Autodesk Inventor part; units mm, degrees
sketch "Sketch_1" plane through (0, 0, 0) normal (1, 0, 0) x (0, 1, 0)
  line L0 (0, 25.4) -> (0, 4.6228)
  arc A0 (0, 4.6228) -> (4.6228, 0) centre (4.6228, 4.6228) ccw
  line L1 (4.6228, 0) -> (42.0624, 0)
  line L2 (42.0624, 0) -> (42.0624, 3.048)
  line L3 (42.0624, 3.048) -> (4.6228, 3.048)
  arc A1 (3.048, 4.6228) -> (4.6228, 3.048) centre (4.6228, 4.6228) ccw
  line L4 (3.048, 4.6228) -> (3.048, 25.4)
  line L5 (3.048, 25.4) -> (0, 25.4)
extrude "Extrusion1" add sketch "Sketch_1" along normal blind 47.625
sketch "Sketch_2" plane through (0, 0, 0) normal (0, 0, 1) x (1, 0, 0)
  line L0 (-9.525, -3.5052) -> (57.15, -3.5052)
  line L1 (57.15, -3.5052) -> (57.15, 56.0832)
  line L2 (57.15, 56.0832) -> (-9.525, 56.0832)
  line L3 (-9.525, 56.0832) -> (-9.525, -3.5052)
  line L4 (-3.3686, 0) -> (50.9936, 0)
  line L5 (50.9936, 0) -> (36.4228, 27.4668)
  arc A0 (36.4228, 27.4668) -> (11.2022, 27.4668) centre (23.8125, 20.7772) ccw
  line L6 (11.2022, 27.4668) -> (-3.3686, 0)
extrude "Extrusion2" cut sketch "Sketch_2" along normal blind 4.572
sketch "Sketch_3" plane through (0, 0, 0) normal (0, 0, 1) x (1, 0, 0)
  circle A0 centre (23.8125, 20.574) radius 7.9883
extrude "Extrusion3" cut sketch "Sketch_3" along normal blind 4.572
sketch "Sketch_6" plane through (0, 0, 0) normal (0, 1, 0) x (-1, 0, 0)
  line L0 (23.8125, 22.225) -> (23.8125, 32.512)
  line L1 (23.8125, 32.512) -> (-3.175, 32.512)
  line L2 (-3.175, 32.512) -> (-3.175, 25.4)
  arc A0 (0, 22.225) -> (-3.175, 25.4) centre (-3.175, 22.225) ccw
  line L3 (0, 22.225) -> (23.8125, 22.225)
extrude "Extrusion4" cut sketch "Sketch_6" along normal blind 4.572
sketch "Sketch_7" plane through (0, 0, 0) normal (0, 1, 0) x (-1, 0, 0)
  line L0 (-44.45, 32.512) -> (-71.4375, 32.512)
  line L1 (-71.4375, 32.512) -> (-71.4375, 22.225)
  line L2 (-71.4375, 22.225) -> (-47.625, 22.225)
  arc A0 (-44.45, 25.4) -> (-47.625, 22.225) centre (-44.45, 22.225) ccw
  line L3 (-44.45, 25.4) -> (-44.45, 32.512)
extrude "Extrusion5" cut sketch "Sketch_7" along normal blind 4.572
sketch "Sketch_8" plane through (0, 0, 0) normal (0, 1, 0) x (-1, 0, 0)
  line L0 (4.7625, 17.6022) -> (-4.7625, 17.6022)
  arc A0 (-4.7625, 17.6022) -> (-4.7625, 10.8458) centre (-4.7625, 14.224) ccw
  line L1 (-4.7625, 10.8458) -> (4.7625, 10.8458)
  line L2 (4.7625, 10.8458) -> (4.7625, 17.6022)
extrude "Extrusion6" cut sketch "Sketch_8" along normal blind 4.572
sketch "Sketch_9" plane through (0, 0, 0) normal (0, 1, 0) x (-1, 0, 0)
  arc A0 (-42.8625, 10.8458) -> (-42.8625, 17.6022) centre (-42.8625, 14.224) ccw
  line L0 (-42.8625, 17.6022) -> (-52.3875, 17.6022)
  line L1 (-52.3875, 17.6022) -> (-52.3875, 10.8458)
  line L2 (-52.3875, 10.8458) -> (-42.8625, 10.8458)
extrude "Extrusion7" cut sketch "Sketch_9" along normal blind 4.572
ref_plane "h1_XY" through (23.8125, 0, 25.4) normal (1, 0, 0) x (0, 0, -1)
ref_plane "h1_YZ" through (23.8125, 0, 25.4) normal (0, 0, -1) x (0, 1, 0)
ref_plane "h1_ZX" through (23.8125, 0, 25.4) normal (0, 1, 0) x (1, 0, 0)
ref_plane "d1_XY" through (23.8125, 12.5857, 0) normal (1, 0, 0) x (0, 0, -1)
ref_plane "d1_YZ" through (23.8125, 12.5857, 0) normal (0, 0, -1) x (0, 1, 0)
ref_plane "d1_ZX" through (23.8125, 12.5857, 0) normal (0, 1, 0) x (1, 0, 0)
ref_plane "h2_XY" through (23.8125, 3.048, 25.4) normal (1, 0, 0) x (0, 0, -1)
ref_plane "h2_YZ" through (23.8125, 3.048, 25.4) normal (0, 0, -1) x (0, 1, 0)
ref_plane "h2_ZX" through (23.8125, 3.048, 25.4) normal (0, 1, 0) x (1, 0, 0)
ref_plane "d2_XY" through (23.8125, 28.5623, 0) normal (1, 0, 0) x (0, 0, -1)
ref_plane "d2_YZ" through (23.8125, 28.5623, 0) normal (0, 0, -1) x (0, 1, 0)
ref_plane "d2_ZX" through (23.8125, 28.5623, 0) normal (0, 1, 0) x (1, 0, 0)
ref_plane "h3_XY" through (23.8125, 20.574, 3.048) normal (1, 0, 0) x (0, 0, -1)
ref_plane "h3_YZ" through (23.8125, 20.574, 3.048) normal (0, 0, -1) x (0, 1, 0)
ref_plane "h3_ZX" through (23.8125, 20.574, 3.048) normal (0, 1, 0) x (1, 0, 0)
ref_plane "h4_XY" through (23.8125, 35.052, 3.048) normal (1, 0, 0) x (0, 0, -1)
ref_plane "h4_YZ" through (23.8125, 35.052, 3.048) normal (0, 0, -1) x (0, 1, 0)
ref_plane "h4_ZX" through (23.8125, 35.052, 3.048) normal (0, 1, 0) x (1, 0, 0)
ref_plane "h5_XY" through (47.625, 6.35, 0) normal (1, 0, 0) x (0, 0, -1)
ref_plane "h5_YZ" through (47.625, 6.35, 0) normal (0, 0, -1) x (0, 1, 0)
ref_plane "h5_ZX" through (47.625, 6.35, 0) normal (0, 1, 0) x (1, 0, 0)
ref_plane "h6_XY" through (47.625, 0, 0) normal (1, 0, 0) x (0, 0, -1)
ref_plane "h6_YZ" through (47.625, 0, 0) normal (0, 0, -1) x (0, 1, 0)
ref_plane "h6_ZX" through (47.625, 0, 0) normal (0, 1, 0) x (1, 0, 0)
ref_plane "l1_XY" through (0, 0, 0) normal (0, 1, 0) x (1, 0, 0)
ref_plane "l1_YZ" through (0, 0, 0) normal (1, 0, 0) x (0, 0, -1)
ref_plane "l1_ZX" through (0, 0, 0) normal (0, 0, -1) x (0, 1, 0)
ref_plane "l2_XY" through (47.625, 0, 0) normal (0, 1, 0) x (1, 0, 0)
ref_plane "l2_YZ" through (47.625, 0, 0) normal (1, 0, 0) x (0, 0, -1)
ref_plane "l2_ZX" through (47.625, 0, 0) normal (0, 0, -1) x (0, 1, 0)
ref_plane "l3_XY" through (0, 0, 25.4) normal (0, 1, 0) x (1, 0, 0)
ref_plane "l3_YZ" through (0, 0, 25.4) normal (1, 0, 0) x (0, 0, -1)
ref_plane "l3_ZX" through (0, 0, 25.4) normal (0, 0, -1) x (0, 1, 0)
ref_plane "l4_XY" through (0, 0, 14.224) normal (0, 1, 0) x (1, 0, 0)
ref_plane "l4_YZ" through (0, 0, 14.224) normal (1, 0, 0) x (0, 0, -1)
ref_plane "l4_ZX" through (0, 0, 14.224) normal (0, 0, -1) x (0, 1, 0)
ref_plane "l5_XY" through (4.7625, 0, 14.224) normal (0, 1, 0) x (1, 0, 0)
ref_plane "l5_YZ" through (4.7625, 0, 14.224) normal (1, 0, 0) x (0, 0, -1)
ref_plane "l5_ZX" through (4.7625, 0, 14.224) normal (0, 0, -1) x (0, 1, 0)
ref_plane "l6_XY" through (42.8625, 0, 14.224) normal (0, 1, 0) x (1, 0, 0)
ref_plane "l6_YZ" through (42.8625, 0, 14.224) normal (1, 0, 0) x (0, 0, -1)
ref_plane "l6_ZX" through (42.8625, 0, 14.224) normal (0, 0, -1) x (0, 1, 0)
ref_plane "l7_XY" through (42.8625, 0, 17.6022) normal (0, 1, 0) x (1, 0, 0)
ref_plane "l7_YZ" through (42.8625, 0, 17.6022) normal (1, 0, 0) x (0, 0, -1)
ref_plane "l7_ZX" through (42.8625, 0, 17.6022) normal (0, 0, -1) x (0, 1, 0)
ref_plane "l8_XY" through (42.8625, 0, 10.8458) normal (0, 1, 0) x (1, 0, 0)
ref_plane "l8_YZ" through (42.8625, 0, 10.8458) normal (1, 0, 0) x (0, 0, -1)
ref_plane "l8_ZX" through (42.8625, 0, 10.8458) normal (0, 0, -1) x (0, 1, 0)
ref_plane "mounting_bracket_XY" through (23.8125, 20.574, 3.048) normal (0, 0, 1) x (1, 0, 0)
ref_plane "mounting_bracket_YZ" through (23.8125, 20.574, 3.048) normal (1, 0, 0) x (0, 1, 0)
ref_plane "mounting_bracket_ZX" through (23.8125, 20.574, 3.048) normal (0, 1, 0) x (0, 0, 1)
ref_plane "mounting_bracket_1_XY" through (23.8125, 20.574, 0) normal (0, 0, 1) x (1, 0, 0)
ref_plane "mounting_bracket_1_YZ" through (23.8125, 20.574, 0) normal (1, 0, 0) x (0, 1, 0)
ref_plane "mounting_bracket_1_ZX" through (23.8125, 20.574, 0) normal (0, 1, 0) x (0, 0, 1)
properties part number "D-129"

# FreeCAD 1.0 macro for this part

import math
import FreeCAD as App
import Part
import Sketcher
Q = App.Units.Quantity


def add_polygon(sketch, points):
    """Adds a closed chain of lines whose ends are joined by coincident constraints."""
    first, n = sketch.GeometryCount, len(points)
    for a, b in zip(points, points[1:] + points[:1]):
        sketch.addGeometry(Part.LineSegment(App.Vector(*a, 0), App.Vector(*b, 0)), False)
    for i in range(n):
        sketch.addConstraint(Sketcher.Constraint("Coincident", first + i, 2, first + (i + 1) % n, 1))

doc = App.newDocument("Part")
body = doc.addObject("PartDesign::Body", "Body")

# Sketch on YZ plane
sketch1 = body.newObject("Sketcher::SketchObject", "Sketch")
sketch1.AttachmentSupport = (doc.getObject("YZ_Plane"), [""])
sketch1.MapMode = "FlatFace"
sketch1.addGeometry(Part.LineSegment(App.Vector(3.048, 25.4, 0), App.Vector(0, 25.4, 0)), False)
sketch1.addGeometry(Part.LineSegment(App.Vector(0, 25.4, 0), App.Vector(0, 4.6228, 0)), False)
sketch1.addGeometry(Part.ArcOfCircle(Part.Circle(App.Vector(4.6228, 4.6228, 0), App.Vector(0, 0, 1), 4.6228), math.radians(180), math.radians(270)), False)
sketch1.addGeometry(Part.LineSegment(App.Vector(4.6228, 0, 0), App.Vector(42.0624, 0, 0)), False)
sketch1.addGeometry(Part.LineSegment(App.Vector(42.0624, 0, 0), App.Vector(42.0624, 3.048, 0)), False)
sketch1.addGeometry(Part.LineSegment(App.Vector(42.0624, 3.048, 0), App.Vector(4.6228, 3.048, 0)), False)
sketch1.addGeometry(Part.ArcOfCircle(Part.Circle(App.Vector(4.6228, 4.6228, 0), App.Vector(0, 0, 1), 1.5748), math.radians(180), math.radians(270)), False)
sketch1.addGeometry(Part.LineSegment(App.Vector(3.048, 4.6228, 0), App.Vector(3.048, 25.4, 0)), False)
sketch1.addConstraint(Sketcher.Constraint("Coincident", 0, 2, 1, 1))
sketch1.addConstraint(Sketcher.Constraint("Tangent", 1, 2, 2, 1))
sketch1.addConstraint(Sketcher.Constraint("Tangent", 2, 2, 3, 1))
sketch1.addConstraint(Sketcher.Constraint("Coincident", 3, 2, 4, 1))
sketch1.addConstraint(Sketcher.Constraint("Coincident", 4, 2, 5, 1))
sketch1.addConstraint(Sketcher.Constraint("Tangent", 5, 2, 6, 2))
sketch1.addConstraint(Sketcher.Constraint("Tangent", 6, 1, 7, 1))
sketch1.addConstraint(Sketcher.Constraint("Coincident", 7, 2, 0, 1))
sketch1.addConstraint(Sketcher.Constraint("Horizontal", 0))
sketch1.addConstraint(Sketcher.Constraint("Vertical", 1))
sketch1.addConstraint(Sketcher.Constraint("Horizontal", 3))
sketch1.addConstraint(Sketcher.Constraint("Vertical", 4))
sketch1.addConstraint(Sketcher.Constraint("Horizontal", 5))
sketch1.addConstraint(Sketcher.Constraint("Vertical", 7))
sketch1.addConstraint(Sketcher.Constraint("Coincident", 6, 3, 2, 3))
sketch1.addConstraint(Sketcher.Constraint("PointOnObject", 0, 2, -2))
sketch1.addConstraint(Sketcher.Constraint("PointOnObject", 2, 2, -1))
sketch1.addConstraint(Sketcher.Constraint("DistanceY", -1, 1, 0, 2, Q("1 in")))
sketch1.addConstraint(Sketcher.Constraint("Radius", 2, Q("0.182 in")))
sketch1.addConstraint(Sketcher.Constraint("Radius", 6, Q("0.062 in")))
sketch1.addConstraint(Sketcher.Constraint("DistanceX", 3, 1, 3, 2, Q("1.474 in")))
pad1 = body.newObject("PartDesign::Pad", "Pad")
pad1.Profile = sketch1
pad1.Length = Q("1.875 in")

# Sketch on XY plane
sketch2 = body.newObject("Sketcher::SketchObject", "Sketch001")
sketch2.AttachmentSupport = (doc.getObject("XY_Plane"), [""])
sketch2.MapMode = "FlatFace"
add_polygon(sketch2, [(-9.525, 56.0832), (-9.525, -3.5052), (57.15, -3.5052), (57.15, 56.0832)])  # lines 0-3
sketch2.addGeometry(Part.LineSegment(App.Vector(50.9936, 0, 0), App.Vector(-3.3686, 0, 0)), False)  # 4
sketch2.addGeometry(Part.LineSegment(App.Vector(-3.3686, 0, 0), App.Vector(11.2022, 27.4668, 0)), False)  # 5
sketch2.addGeometry(Part.ArcOfCircle(Part.Circle(App.Vector(23.8125, 20.7772, 0), App.Vector(0, 0, 1), 14.274817), math.radians(27.945368), math.radians(152.054632)), False)  # 6
sketch2.addGeometry(Part.LineSegment(App.Vector(36.4228, 27.4668, 0), App.Vector(50.9936, 0, 0)), False)  # 7
sketch2.addConstraint(Sketcher.Constraint("Coincident", 4, 2, 5, 1))
sketch2.addConstraint(Sketcher.Constraint("Tangent", 5, 2, 6, 2))
sketch2.addConstraint(Sketcher.Constraint("Tangent", 6, 1, 7, 1))
sketch2.addConstraint(Sketcher.Constraint("Coincident", 7, 2, 4, 1))
sketch2.addConstraint(Sketcher.Constraint("Vertical", 0))
sketch2.addConstraint(Sketcher.Constraint("Horizontal", 1))
sketch2.addConstraint(Sketcher.Constraint("Vertical", 2))
sketch2.addConstraint(Sketcher.Constraint("Horizontal", 3))
sketch2.addConstraint(Sketcher.Constraint("Horizontal", 4))
sketch2.addConstraint(Sketcher.Constraint("PointOnObject", 4, 2, -1))
sketch2.addConstraint(Sketcher.Constraint("Horizontal", 5, 2, 6, 1))
sketch2.addConstraint(Sketcher.Constraint("Radius", 6, Q("0.562 in")))
sketch2.addConstraint(Sketcher.Constraint("DistanceX", 1, 1, 1, 2, Q("2.625 in")))
sketch2.addConstraint(Sketcher.Constraint("DistanceY", 0, 2, 0, 1, Q("2.346 in")))
sketch2.addConstraint(Sketcher.Constraint("DistanceX", -1, 1, 1, 2, Q("2.25 in")))
sketch2.addConstraint(Sketcher.Constraint("DistanceY", 6, 3, 2, 2, Q("1.39 in")))
sketch2.addConstraint(Sketcher.Constraint("DistanceX", -1, 1, 6, 3, Q("0.9375 in")))
sketch2.addConstraint(Sketcher.Constraint("DistanceY", -1, 1, 6, 3, Q("0.818 in")))
sketch2.addConstraint(Sketcher.Constraint("Distance", 5, Q("1.2241 in")))
pocket1 = body.newObject("PartDesign::Pocket", "Pocket")
pocket1.Profile = sketch2
pocket1.Length = Q("0.18 in")
pocket1.Reversed = True

# Sketch on XY plane
sketch3 = body.newObject("Sketcher::SketchObject", "Sketch002")
sketch3.AttachmentSupport = (doc.getObject("XY_Plane"), [""])
sketch3.MapMode = "FlatFace"
sketch3.addGeometry(Part.Circle(App.Vector(23.8125, 20.574, 0), App.Vector(0, 0, 1), 7.9883), False)
sketch3.addConstraint(Sketcher.Constraint("Diameter", 0, Q("0.629 in")))
sketch3.addConstraint(Sketcher.Constraint("DistanceY", -1, 1, 0, 3, Q("0.81 in")))
sketch3.addConstraint(Sketcher.Constraint("DistanceX", -1, 1, 0, 3, Q("0.9375 in")))
pocket2 = body.newObject("PartDesign::Pocket", "Pocket001")
pocket2.Profile = sketch3
pocket2.Length = Q("0.18 in")
pocket2.Reversed = True

# Sketch on XZ plane
sketch4 = body.newObject("Sketcher::SketchObject", "Sketch003")
sketch4.AttachmentSupport = (doc.getObject("XZ_Plane"), [""])
sketch4.MapMode = "FlatFace"
sketch4.addGeometry(Part.LineSegment(App.Vector(0, 22.225, 0), App.Vector(-23.8125, 22.225, 0)), False)
sketch4.addGeometry(Part.LineSegment(App.Vector(-23.8125, 22.225, 0), App.Vector(-23.8125, 32.512, 0)), False)
sketch4.addGeometry(Part.LineSegment(App.Vector(-23.8125, 32.512, 0), App.Vector(3.175, 32.512, 0)), False)
sketch4.addGeometry(Part.LineSegment(App.Vector(3.175, 32.512, 0), App.Vector(3.175, 25.4, 0)), False)
sketch4.addGeometry(Part.ArcOfCircle(Part.Circle(App.Vector(3.175, 22.225, 0), App.Vector(0, 0, 1), 3.175), math.radians(90), math.radians(180)), False)
sketch4.addConstraint(Sketcher.Constraint("Coincident", 0, 2, 1, 1))
sketch4.addConstraint(Sketcher.Constraint("Coincident", 1, 2, 2, 1))
sketch4.addConstraint(Sketcher.Constraint("Coincident", 2, 2, 3, 1))
sketch4.addConstraint(Sketcher.Constraint("Coincident", 3, 2, 4, 1))
sketch4.addConstraint(Sketcher.Constraint("Coincident", 4, 2, 0, 1))
sketch4.addConstraint(Sketcher.Constraint("Horizontal", 0))
sketch4.addConstraint(Sketcher.Constraint("Vertical", 1))
sketch4.addConstraint(Sketcher.Constraint("Horizontal", 2))
sketch4.addConstraint(Sketcher.Constraint("Vertical", 3))
sketch4.addConstraint(Sketcher.Constraint("PointOnObject", 4, 2, -2))
sketch4.addConstraint(Sketcher.Constraint("Horizontal", 4, 3, 0, 2))
sketch4.addConstraint(Sketcher.Constraint("Vertical", 4, 3, 2, 2))
sketch4.addConstraint(Sketcher.Constraint("DistanceY", -1, 1, 3, 2, Q("1 in")))
sketch4.addConstraint(Sketcher.Constraint("Radius", 4, Q("0.125 in")))
sketch4.addConstraint(Sketcher.Constraint("DistanceY", 3, 2, 3, 1, Q("0.28 in")))
sketch4.addConstraint(Sketcher.Constraint("DistanceX", 0, 2, 0, 1, Q("0.9375 in")))
pocket3 = body.newObject("PartDesign::Pocket", "Pocket002")
pocket3.Profile = sketch4
pocket3.Length = Q("0.18 in")

# Sketch on XZ plane
sketch5 = body.newObject("Sketcher::SketchObject", "Sketch004")
sketch5.AttachmentSupport = (doc.getObject("XZ_Plane"), [""])
sketch5.MapMode = "FlatFace"
sketch5.addGeometry(Part.LineSegment(App.Vector(44.45, 25.4, 0), App.Vector(44.45, 32.512, 0)), False)
sketch5.addGeometry(Part.LineSegment(App.Vector(44.45, 32.512, 0), App.Vector(71.4375, 32.512, 0)), False)
sketch5.addGeometry(Part.LineSegment(App.Vector(71.4375, 32.512, 0), App.Vector(71.4375, 22.225, 0)), False)
sketch5.addGeometry(Part.LineSegment(App.Vector(71.4375, 22.225, 0), App.Vector(47.625, 22.225, 0)), False)
sketch5.addGeometry(Part.ArcOfCircle(Part.Circle(App.Vector(44.45, 22.225, 0), App.Vector(0, 0, 1), 3.175), math.radians(0), math.radians(90)), False)
sketch5.addConstraint(Sketcher.Constraint("Coincident", 0, 2, 1, 1))
sketch5.addConstraint(Sketcher.Constraint("Coincident", 1, 2, 2, 1))
sketch5.addConstraint(Sketcher.Constraint("Coincident", 2, 2, 3, 1))
sketch5.addConstraint(Sketcher.Constraint("Coincident", 3, 2, 4, 1))
sketch5.addConstraint(Sketcher.Constraint("Coincident", 4, 2, 0, 1))
sketch5.addConstraint(Sketcher.Constraint("Vertical", 0))
sketch5.addConstraint(Sketcher.Constraint("Horizontal", 1))
sketch5.addConstraint(Sketcher.Constraint("Vertical", 2))
sketch5.addConstraint(Sketcher.Constraint("Horizontal", 3))
sketch5.addConstraint(Sketcher.Constraint("Horizontal", 4, 3, 2, 2))
sketch5.addConstraint(Sketcher.Constraint("Vertical", 4, 3, 0, 2))
sketch5.addConstraint(Sketcher.Constraint("DistanceY", -1, 1, 4, 2, Q("1 in")))
sketch5.addConstraint(Sketcher.Constraint("Radius", 4, Q("0.125 in")))
sketch5.addConstraint(Sketcher.Constraint("DistanceY", 0, 1, 0, 2, Q("0.28 in")))
sketch5.addConstraint(Sketcher.Constraint("DistanceX", 1, 1, 1, 2, Q("1.0625 in")))
sketch5.addConstraint(Sketcher.Constraint("DistanceX", -1, 1, 4, 3, Q("1.75 in")))
pocket4 = body.newObject("PartDesign::Pocket", "Pocket003")
pocket4.Profile = sketch5
pocket4.Length = Q("0.18 in")

# Sketch on XZ plane
sketch6 = body.newObject("Sketcher::SketchObject", "Sketch005")
sketch6.AttachmentSupport = (doc.getObject("XZ_Plane"), [""])
sketch6.MapMode = "FlatFace"
sketch6.addGeometry(Part.LineSegment(App.Vector(-4.7625, 10.8458, 0), App.Vector(-4.7625, 17.6022, 0)), False)
sketch6.addGeometry(Part.LineSegment(App.Vector(-4.7625, 17.6022, 0), App.Vector(4.7625, 17.6022, 0)), False)
sketch6.addGeometry(Part.ArcOfCircle(Part.Circle(App.Vector(4.7625, 14.224, 0), App.Vector(0, 0, 1), 3.3782), math.radians(-90), math.radians(90)), False)
sketch6.addGeometry(Part.LineSegment(App.Vector(4.7625, 10.8458, 0), App.Vector(-4.7625, 10.8458, 0)), False)
sketch6.addConstraint(Sketcher.Constraint("Coincident", 0, 2, 1, 1))
sketch6.addConstraint(Sketcher.Constraint("Tangent", 1, 2, 2, 2))
sketch6.addConstraint(Sketcher.Constraint("Tangent", 2, 1, 3, 1))
sketch6.addConstraint(Sketcher.Constraint("Coincident", 3, 2, 0, 1))
sketch6.addConstraint(Sketcher.Constraint("Vertical", 0))
sketch6.addConstraint(Sketcher.Constraint("Horizontal", 1))
sketch6.addConstraint(Sketcher.Constraint("Horizontal", 3))
sketch6.addConstraint(Sketcher.Constraint("Radius", 2, Q("0.133 in")))
sketch6.addConstraint(Sketcher.Constraint("DistanceX", 1, 1, 1, 2, Q("0.375 in")))
sketch6.addConstraint(Sketcher.Constraint("DistanceY", -1, 1, 2, 3, Q("0.56 in")))
sketch6.addConstraint(Sketcher.Constraint("DistanceX", -1, 1, 2, 3, Q("0.1875 in")))
pocket5 = body.newObject("PartDesign::Pocket", "Pocket004")
pocket5.Profile = sketch6
pocket5.Length = Q("0.18 in")

# Sketch on XZ plane
sketch7 = body.newObject("Sketcher::SketchObject", "Sketch006")
sketch7.AttachmentSupport = (doc.getObject("XZ_Plane"), [""])
sketch7.MapMode = "FlatFace"
sketch7.addGeometry(Part.LineSegment(App.Vector(52.3875, 10.8458, 0), App.Vector(42.8625, 10.8458, 0)), False)
sketch7.addGeometry(Part.ArcOfCircle(Part.Circle(App.Vector(42.8625, 14.224, 0), App.Vector(0, 0, 1), 3.3782), math.radians(90), math.radians(270)), False)
sketch7.addGeometry(Part.LineSegment(App.Vector(42.8625, 17.6022, 0), App.Vector(52.3875, 17.6022, 0)), False)
sketch7.addGeometry(Part.LineSegment(App.Vector(52.3875, 17.6022, 0), App.Vector(52.3875, 10.8458, 0)), False)
sketch7.addConstraint(Sketcher.Constraint("Tangent", 0, 2, 1, 2))
sketch7.addConstraint(Sketcher.Constraint("Tangent", 1, 1, 2, 1))
sketch7.addConstraint(Sketcher.Constraint("Coincident", 2, 2, 3, 1))
sketch7.addConstraint(Sketcher.Constraint("Coincident", 3, 2, 0, 1))
sketch7.addConstraint(Sketcher.Constraint("Horizontal", 0))
sketch7.addConstraint(Sketcher.Constraint("Horizontal", 2))
sketch7.addConstraint(Sketcher.Constraint("Vertical", 3))
sketch7.addConstraint(Sketcher.Constraint("Radius", 1, Q("0.133 in")))
sketch7.addConstraint(Sketcher.Constraint("DistanceX", 0, 2, 0, 1, Q("0.375 in")))
sketch7.addConstraint(Sketcher.Constraint("DistanceY", -1, 1, 1, 3, Q("0.56 in")))
sketch7.addConstraint(Sketcher.Constraint("DistanceX", -1, 1, 1, 3, Q("1.6875 in")))
pocket6 = body.newObject("PartDesign::Pocket", "Pocket005")
pocket6.Profile = sketch7
pocket6.Length = Q("0.18 in")

doc.recompute()
